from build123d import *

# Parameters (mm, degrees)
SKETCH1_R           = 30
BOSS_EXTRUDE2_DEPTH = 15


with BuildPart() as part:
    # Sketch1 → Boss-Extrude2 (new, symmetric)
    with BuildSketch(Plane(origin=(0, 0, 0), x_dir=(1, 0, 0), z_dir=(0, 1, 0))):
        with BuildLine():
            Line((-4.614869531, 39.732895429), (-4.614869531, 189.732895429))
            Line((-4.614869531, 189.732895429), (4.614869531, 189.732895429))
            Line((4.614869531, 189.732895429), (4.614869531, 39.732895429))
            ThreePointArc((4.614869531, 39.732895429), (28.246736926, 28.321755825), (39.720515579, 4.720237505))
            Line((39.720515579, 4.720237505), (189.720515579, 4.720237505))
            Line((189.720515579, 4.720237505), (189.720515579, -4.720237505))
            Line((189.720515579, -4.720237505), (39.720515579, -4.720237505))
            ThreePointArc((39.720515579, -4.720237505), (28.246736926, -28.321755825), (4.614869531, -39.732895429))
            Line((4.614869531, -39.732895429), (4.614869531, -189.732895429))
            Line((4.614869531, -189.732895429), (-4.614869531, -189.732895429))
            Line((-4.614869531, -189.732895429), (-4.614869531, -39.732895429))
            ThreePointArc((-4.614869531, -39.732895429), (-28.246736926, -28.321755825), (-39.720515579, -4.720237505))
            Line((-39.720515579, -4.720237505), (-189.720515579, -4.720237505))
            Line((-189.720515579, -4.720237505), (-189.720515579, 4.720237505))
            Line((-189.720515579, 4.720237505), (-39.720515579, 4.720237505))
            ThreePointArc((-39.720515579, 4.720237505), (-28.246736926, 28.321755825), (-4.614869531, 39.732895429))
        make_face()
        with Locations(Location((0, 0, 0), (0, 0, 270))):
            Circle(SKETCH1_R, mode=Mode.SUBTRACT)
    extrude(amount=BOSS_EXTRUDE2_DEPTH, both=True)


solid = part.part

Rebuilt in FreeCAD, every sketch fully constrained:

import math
import FreeCAD as App
import Part
import Sketcher

doc = App.newDocument("Part")
body = doc.addObject("PartDesign::Body", "Body")

# Sketch on XZ plane
sketch1 = body.newObject("Sketcher::SketchObject", "Sketch")
sketch1.AttachmentSupport = (doc.getObject("XZ_Plane"), [""])
sketch1.MapMode = "FlatFace"
sketch1.addGeometry([
    Part.LineSegment(App.Vector(-4.61487, -189.732895, 0), App.Vector(-4.61487, -39.732895, 0)),  # 0
    Part.ArcOfCircle(Part.Circle(App.Vector(0, 0, 0), App.Vector(0, 0, 1), 40), math.radians(-173.222966), math.radians(-96.625067)),  # 1
    Part.LineSegment(App.Vector(-39.720516, -4.720238, 0), App.Vector(-189.720516, -4.720238, 0)),  # 2
    Part.LineSegment(App.Vector(-189.720516, -4.720238, 0), App.Vector(-189.720516, 4.720238, 0)),  # 3
    Part.LineSegment(App.Vector(-189.720516, 4.720238, 0), App.Vector(-39.720516, 4.720238, 0)),  # 4
    Part.ArcOfCircle(Part.Circle(App.Vector(0, 0, 0), App.Vector(0, 0, 1), 40), math.radians(96.625067), math.radians(173.222966)),  # 5
    Part.LineSegment(App.Vector(-4.61487, 39.732895, 0), App.Vector(-4.61487, 189.732895, 0)),  # 6
    Part.LineSegment(App.Vector(-4.61487, 189.732895, 0), App.Vector(4.61487, 189.732895, 0)),  # 7
    Part.LineSegment(App.Vector(4.61487, 189.732895, 0), App.Vector(4.61487, 39.732895, 0)),  # 8
    Part.ArcOfCircle(Part.Circle(App.Vector(0, 0, 0), App.Vector(0, 0, 1), 40), math.radians(6.777034), math.radians(83.374933)),  # 9
    Part.LineSegment(App.Vector(39.720516, 4.720238, 0), App.Vector(189.720516, 4.720238, 0)),  # 10
    Part.LineSegment(App.Vector(189.720516, 4.720238, 0), App.Vector(189.720516, -4.720238, 0)),  # 11
    Part.LineSegment(App.Vector(189.720516, -4.720238, 0), App.Vector(39.720516, -4.720238, 0)),  # 12
    Part.ArcOfCircle(Part.Circle(App.Vector(0, 0, 0), App.Vector(0, 0, 1), 40), math.radians(-83.374933), math.radians(-6.777034)),  # 13
    Part.LineSegment(App.Vector(4.61487, -39.732895, 0), App.Vector(4.61487, -189.732895, 0)),  # 14
    Part.LineSegment(App.Vector(4.61487, -189.732895, 0), App.Vector(-4.61487, -189.732895, 0)),  # 15
    Part.Circle(App.Vector(0, 0, 0), App.Vector(0, 0, 1), 30),  # 16
], False)
sketch1.addConstraint([
    Sketcher.Constraint("Coincident", 0, 2, 1, 2),
    Sketcher.Constraint("Coincident", 1, 1, 2, 1),
    Sketcher.Constraint("Coincident", 2, 2, 3, 1),
    Sketcher.Constraint("Coincident", 3, 2, 4, 1),
    Sketcher.Constraint("Coincident", 4, 2, 5, 2),
    Sketcher.Constraint("Coincident", 5, 1, 6, 1),
    Sketcher.Constraint("Coincident", 6, 2, 7, 1),
    Sketcher.Constraint("Coincident", 7, 2, 8, 1),
    Sketcher.Constraint("Coincident", 8, 2, 9, 2),
    Sketcher.Constraint("Coincident", 9, 1, 10, 1),
    Sketcher.Constraint("Coincident", 10, 2, 11, 1),
    Sketcher.Constraint("Coincident", 11, 2, 12, 1),
    Sketcher.Constraint("Coincident", 12, 2, 13, 2),
    Sketcher.Constraint("Coincident", 13, 1, 14, 1),
    Sketcher.Constraint("Coincident", 14, 2, 15, 1),
    Sketcher.Constraint("Coincident", 15, 2, 0, 1),
    Sketcher.Constraint("Vertical", 0),
    Sketcher.Constraint("Horizontal", 2),
    Sketcher.Constraint("Vertical", 3),
    Sketcher.Constraint("Horizontal", 4),
    Sketcher.Constraint("Vertical", 6),
    Sketcher.Constraint("Horizontal", 7),
    Sketcher.Constraint("Vertical", 8),
    Sketcher.Constraint("Horizontal", 10),
    Sketcher.Constraint("Vertical", 11),
    Sketcher.Constraint("Horizontal", 12),
    Sketcher.Constraint("Vertical", 14),
    Sketcher.Constraint("Horizontal", 15),
    Sketcher.Constraint("Coincident", 1, 3, -1, 1),
    Sketcher.Constraint("Coincident", 5, 3, -1, 1),
    Sketcher.Constraint("Coincident", 9, 3, -1, 1),
    Sketcher.Constraint("Coincident", 13, 3, -1, 1),
    Sketcher.Constraint("Coincident", 16, 3, -1, 1),
    Sketcher.Constraint("Equal", 1, 5),
    Sketcher.Constraint("Equal", 5, 9),
    Sketcher.Constraint("Equal", 9, 13),
    Sketcher.Constraint("Symmetric", 2, 2, 10, 2, -1, 1),
    Sketcher.Constraint("Symmetric", 6, 2, 14, 2, -1, 1),
    Sketcher.Constraint("Horizontal", 5, 1, 8, 2),
    Sketcher.Constraint("Horizontal", 4, 2, 9, 1),
    Sketcher.Constraint("Horizontal", 2, 2, 11, 2),
    Sketcher.Constraint("Horizontal", 0, 2, 13, 1),
    Sketcher.Constraint("Equal", 12, 0),
    Sketcher.Constraint("Diameter", 16, 60.0),
    Sketcher.Constraint("Radius", 1, 40.0),
    Sketcher.Constraint("DistanceX", 2, 2, 2, 1, 150.0),
    Sketcher.Constraint("DistanceX", 7, 1, 7, 2, 9.229739),
    Sketcher.Constraint("DistanceY", 3, 1, 3, 2, 9.440475),
])
pad1 = body.newObject("PartDesign::Pad", "Pad")
pad1.Profile = sketch1
pad1.Length = 30
pad1.Midplane = True

doc.recompute()
